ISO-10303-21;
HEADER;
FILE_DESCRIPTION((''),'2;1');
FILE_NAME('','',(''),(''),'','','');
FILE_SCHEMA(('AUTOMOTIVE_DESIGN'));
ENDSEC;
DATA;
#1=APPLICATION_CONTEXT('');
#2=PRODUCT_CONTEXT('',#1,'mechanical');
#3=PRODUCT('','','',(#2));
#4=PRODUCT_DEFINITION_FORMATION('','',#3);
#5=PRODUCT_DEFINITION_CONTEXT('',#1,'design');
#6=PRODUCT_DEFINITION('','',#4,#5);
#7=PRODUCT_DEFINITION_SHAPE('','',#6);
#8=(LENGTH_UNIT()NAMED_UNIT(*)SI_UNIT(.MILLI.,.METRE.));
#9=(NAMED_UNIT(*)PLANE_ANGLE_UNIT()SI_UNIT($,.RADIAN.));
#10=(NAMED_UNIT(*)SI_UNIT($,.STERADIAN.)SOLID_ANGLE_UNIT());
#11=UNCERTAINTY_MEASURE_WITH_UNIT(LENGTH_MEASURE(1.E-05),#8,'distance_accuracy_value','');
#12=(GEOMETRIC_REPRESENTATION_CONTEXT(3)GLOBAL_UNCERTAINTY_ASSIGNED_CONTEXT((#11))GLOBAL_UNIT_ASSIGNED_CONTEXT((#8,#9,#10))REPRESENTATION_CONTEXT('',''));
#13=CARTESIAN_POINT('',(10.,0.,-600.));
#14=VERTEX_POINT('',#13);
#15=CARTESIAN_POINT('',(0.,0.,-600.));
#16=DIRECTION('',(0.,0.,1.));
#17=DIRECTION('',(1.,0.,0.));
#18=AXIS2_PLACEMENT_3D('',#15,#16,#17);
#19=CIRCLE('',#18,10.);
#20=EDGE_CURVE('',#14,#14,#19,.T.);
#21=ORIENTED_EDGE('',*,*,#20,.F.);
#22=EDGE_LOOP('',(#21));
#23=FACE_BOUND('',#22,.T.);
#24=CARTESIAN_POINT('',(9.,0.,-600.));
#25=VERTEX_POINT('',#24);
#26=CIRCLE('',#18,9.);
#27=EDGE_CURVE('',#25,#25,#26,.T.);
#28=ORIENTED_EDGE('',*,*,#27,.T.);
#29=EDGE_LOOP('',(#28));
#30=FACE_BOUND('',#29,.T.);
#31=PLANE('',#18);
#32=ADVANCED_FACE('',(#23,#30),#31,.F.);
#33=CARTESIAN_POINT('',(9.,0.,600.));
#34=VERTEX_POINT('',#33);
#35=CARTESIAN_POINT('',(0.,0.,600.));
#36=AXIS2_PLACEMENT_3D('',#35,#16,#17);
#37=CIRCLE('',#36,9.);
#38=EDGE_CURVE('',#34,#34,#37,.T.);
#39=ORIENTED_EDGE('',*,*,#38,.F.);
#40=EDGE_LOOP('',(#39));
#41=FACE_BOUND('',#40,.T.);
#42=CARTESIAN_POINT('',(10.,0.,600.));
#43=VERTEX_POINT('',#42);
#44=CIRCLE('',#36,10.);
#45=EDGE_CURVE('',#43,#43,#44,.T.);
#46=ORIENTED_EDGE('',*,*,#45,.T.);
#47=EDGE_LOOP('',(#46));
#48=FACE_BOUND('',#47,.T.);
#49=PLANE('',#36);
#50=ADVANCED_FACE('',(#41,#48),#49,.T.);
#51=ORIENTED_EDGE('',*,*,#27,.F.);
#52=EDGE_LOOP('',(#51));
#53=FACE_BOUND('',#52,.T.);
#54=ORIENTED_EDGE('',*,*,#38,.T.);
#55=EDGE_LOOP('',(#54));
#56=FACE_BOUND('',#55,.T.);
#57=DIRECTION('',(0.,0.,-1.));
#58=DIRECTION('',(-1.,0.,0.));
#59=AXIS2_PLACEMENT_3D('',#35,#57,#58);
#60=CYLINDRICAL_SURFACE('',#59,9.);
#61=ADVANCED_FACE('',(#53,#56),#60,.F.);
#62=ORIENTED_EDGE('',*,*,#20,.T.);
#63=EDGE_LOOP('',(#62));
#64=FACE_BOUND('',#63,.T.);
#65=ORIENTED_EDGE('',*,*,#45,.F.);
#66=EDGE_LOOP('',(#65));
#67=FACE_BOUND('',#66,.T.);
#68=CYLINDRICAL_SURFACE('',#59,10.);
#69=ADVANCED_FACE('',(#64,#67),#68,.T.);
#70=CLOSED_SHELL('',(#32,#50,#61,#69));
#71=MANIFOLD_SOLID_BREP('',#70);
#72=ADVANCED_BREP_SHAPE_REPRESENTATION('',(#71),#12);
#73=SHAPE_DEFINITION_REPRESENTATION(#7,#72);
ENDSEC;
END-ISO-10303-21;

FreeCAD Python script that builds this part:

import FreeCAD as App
import Part
import Sketcher
from FreeCAD import Vector
Q = App.Units.Quantity

doc = App.newDocument("Part")
body = doc.addObject("PartDesign::Body", "Body")

# Sketch on XY plane
sketch1 = body.newObject("Sketcher::SketchObject", "Sketch")
sketch1.AttachmentSupport = (doc.getObject("XY_Plane"), [""])
sketch1.MapMode = "FlatFace"
sketch1.addGeometry([
    Part.Circle(Vector(0, 0, 0), Vector(0, 0, 1), 10),
    Part.Circle(Vector(0, 0, 0), Vector(0, 0, 1), 9),
], False)
sketch1.addConstraint([
    Sketcher.Constraint("Coincident", 0, 3, -1, 1),
    Sketcher.Constraint("Coincident", 1, 3, -1, 1),
    Sketcher.Constraint("Diameter", 0, Q("20 mm")),
    Sketcher.Constraint("Diameter", 1, Q("18 mm")),
])
pad1 = body.newObject("PartDesign::Pad", "Pad")
pad1.Profile = sketch1
pad1.Length = 1200
pad1.Midplane = True

doc.recompute()
